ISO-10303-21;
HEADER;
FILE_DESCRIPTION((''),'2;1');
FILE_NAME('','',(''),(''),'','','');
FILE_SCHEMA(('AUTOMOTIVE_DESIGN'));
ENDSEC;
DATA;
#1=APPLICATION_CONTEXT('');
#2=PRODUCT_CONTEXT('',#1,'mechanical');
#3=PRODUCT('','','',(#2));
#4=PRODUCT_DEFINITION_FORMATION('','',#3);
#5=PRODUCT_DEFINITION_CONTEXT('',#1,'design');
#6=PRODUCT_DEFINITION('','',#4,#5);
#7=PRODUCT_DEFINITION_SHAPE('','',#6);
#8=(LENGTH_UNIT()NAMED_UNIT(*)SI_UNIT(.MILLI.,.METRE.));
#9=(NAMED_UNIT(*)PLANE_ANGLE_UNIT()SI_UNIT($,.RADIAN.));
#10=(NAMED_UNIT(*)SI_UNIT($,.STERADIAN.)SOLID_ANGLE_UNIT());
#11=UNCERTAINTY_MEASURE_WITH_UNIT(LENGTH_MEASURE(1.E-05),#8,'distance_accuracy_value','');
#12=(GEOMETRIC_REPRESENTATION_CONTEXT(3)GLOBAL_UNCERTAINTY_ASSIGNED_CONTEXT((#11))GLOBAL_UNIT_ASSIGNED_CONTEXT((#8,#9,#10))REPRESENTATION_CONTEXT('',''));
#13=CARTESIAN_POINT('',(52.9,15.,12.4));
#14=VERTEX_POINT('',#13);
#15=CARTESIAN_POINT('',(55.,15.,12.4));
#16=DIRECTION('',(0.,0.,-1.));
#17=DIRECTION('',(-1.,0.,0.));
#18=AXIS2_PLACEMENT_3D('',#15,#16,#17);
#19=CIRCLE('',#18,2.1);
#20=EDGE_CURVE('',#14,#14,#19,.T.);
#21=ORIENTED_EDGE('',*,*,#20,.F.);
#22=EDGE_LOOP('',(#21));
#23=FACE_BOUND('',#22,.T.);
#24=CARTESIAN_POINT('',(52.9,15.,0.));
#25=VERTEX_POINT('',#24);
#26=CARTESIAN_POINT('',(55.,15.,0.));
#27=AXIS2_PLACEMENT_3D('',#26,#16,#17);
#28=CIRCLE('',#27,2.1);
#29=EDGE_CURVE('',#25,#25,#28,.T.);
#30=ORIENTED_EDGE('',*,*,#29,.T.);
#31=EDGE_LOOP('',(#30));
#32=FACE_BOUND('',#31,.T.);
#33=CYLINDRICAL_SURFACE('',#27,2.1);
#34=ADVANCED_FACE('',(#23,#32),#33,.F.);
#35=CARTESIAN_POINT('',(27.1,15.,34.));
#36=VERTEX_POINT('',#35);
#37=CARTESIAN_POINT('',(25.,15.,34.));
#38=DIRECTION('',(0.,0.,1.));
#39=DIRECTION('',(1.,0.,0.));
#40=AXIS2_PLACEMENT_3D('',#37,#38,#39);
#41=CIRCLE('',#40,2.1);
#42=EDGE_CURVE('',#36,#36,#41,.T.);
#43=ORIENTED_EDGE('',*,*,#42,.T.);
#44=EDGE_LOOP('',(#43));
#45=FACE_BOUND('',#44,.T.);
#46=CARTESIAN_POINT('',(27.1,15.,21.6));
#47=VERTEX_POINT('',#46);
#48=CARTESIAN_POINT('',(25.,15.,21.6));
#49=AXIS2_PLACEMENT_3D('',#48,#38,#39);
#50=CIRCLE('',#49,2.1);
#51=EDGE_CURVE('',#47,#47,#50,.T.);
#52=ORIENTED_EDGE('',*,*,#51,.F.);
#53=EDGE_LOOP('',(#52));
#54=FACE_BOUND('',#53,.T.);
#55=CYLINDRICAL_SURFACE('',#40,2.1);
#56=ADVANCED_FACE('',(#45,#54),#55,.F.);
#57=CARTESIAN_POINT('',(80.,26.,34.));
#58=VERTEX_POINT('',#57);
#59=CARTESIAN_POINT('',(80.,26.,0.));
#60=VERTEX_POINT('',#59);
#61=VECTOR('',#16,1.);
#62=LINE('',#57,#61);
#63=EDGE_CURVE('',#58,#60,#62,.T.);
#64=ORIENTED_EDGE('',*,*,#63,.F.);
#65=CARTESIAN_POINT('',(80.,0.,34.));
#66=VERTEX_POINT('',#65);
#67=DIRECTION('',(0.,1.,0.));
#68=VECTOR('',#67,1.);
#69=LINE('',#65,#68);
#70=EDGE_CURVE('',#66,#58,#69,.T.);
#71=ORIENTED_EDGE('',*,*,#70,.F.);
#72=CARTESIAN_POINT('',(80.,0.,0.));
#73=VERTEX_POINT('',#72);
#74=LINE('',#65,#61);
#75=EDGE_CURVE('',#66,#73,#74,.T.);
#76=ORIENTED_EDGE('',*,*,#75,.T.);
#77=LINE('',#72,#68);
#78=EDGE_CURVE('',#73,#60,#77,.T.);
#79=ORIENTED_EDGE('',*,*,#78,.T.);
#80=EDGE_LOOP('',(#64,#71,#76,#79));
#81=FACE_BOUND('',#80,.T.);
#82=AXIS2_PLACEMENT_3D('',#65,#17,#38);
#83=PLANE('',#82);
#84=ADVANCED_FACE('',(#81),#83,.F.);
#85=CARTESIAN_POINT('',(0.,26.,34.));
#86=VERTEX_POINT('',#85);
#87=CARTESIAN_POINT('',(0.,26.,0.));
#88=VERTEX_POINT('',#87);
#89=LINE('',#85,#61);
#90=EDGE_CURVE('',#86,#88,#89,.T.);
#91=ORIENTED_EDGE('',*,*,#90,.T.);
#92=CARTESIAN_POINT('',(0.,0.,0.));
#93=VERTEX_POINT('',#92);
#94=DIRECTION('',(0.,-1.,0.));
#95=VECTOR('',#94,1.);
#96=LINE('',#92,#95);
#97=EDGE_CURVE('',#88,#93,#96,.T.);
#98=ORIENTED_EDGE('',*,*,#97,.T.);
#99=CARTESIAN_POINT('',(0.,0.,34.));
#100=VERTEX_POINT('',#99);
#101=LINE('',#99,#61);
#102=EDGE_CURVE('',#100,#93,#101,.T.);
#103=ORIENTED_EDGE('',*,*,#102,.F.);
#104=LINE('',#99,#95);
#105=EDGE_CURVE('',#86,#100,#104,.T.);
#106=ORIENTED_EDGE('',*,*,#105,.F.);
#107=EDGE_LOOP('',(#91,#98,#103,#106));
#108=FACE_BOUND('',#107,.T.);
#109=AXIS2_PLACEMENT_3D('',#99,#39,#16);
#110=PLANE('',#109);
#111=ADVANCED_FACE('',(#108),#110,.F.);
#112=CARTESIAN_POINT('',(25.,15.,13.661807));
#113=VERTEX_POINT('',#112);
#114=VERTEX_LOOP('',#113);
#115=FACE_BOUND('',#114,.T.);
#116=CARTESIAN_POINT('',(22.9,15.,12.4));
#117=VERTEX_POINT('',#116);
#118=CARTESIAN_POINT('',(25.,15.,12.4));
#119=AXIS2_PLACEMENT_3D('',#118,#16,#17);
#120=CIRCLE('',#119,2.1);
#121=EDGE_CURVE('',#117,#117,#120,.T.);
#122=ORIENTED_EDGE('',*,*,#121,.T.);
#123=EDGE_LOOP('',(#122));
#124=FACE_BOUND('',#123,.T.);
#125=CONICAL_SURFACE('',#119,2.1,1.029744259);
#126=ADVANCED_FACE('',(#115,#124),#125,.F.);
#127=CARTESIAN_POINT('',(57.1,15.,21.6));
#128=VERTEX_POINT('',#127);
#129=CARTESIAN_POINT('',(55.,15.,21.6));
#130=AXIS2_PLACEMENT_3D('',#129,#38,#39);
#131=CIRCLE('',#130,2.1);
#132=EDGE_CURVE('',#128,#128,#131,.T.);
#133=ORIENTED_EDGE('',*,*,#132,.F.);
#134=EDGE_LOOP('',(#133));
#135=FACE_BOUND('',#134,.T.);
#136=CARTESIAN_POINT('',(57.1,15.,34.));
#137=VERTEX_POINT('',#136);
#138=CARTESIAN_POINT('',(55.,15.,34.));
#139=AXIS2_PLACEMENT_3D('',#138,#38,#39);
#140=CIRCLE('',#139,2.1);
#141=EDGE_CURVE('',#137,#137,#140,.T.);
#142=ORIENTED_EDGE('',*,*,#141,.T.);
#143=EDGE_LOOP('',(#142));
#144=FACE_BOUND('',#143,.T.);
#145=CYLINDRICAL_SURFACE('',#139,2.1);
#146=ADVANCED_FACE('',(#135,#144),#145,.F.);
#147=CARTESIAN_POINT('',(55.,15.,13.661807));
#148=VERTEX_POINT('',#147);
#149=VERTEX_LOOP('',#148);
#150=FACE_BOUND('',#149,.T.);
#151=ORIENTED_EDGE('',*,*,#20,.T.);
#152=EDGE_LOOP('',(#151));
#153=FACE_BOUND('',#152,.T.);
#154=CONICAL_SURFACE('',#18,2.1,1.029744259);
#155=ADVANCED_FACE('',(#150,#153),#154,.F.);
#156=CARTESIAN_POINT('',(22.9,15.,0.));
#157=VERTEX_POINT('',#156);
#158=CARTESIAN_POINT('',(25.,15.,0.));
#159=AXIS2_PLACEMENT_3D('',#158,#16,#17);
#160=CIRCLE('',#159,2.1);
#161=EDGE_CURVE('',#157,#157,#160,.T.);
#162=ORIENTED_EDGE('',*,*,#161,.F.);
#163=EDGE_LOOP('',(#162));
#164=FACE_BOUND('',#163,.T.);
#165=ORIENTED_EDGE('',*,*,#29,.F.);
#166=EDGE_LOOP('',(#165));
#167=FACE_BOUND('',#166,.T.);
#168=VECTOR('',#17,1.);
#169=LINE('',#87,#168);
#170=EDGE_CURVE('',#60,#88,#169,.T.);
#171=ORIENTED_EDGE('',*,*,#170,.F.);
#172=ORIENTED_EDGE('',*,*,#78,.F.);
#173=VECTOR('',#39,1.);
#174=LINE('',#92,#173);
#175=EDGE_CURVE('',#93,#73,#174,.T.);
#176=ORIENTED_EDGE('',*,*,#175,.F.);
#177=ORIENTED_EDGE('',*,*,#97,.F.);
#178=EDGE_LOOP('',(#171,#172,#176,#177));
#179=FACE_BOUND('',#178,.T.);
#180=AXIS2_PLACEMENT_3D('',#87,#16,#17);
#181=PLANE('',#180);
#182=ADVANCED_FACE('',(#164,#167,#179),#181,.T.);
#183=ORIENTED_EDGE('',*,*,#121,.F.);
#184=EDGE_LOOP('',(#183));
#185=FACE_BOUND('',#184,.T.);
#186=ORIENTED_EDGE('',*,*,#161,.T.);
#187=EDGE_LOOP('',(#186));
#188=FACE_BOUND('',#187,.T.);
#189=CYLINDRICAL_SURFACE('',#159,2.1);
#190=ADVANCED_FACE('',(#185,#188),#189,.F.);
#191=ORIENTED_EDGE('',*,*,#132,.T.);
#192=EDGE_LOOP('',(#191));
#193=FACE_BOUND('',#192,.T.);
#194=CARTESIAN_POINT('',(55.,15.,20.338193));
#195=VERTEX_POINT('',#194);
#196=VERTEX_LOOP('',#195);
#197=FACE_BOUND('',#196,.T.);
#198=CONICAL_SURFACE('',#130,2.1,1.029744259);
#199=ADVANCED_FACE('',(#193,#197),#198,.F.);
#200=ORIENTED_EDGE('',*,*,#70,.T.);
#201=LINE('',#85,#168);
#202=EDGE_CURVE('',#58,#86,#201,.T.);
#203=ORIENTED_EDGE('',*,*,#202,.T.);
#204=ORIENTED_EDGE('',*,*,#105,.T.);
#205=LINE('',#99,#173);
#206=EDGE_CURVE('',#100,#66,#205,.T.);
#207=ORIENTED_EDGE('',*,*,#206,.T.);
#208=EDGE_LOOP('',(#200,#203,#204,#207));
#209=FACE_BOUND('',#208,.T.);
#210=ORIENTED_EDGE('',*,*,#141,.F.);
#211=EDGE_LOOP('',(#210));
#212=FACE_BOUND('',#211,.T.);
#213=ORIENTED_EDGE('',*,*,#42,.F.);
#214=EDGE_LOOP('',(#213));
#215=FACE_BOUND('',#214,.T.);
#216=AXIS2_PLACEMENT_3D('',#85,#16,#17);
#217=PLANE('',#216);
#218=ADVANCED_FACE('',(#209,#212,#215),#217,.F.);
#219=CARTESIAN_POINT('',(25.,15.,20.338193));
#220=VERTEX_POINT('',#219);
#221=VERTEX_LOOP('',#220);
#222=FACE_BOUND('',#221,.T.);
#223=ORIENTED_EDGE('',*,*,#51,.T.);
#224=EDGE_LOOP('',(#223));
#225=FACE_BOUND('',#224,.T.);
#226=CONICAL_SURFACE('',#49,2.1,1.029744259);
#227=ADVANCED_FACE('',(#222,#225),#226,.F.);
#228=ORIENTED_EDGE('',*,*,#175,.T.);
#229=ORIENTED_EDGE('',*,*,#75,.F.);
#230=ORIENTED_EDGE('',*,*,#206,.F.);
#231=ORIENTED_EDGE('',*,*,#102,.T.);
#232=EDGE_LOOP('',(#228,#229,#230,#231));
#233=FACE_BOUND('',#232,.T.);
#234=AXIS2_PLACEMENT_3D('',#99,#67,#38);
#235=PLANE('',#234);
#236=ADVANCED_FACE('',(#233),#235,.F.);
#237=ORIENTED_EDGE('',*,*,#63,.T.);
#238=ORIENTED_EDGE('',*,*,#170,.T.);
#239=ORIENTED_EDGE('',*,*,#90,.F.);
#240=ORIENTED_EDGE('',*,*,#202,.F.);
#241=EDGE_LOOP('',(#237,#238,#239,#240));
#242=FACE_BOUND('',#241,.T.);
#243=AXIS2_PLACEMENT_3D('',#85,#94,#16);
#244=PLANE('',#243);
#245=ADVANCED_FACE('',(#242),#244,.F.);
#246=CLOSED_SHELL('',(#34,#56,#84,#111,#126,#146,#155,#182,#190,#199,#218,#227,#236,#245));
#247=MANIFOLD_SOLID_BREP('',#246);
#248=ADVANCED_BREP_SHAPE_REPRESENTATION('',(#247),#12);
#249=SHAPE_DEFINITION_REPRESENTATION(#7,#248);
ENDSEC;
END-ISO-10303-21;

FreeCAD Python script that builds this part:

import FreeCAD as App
import Part
import Sketcher

V = App.Vector


def add_polygon(sketch, points):
    """Adds a closed chain of lines whose ends are joined by coincident constraints."""
    first, n = sketch.GeometryCount, len(points)
    for a, b in zip(points, points[1:] + points[:1]):
        sketch.addGeometry(Part.LineSegment(App.Vector(*a, 0), App.Vector(*b, 0)), False)
    for i in range(n):
        sketch.addConstraint(Sketcher.Constraint("Coincident", first + i, 2, first + (i + 1) % n, 1))

doc = App.newDocument("Part")
body = doc.addObject("PartDesign::Body", "Body")

# Sketch on XY plane
sketch1 = doc.addObject("Sketcher::SketchObject", "Sketch")
body.addObject(sketch1)
sketch1.AttachmentSupport = (doc.XY_Plane, [""])
sketch1.MapMode = "FlatFace"
add_polygon(sketch1, [(0, 26), (0, 0), (80, 0), (80, 26)])  # lines 0-3
sketch1.addConstraint(Sketcher.Constraint("Vertical", 0))
sketch1.addConstraint(Sketcher.Constraint("Horizontal", 1))
sketch1.addConstraint(Sketcher.Constraint("Vertical", 2))
sketch1.addConstraint(Sketcher.Constraint("Horizontal", 3))
sketch1.addConstraint(Sketcher.Constraint("Coincident", 0, 2, -1, 1))
sketch1.addConstraint(Sketcher.Constraint("DistanceX", 1, 1, 1, 2, 80.0))
sketch1.addConstraint(Sketcher.Constraint("DistanceY", 0, 2, 0, 1, 26.0))
pad1 = doc.addObject("PartDesign::Pad", "Pad")
body.addObject(pad1)
pad1.Profile = sketch1
pad1.Length = 34

# Sketch on XY plane
sketch2 = doc.addObject("Sketcher::SketchObject", "Sketch001")
body.addObject(sketch2)
sketch2.AttachmentSupport = (doc.XY_Plane, [""])
sketch2.MapMode = "FlatFace"
sketch2.addGeometry(Part.Circle(V(55, 15, 0), V(0, 0, 1), 2.1), False)
sketch2.addGeometry(Part.Circle(V(25, 15, 0), V(0, 0, 1), 2.1), False)
sketch2.addConstraint(Sketcher.Constraint("Equal", 0, 1))
sketch2.addConstraint(Sketcher.Constraint("Horizontal", 0, 3, 1, 3))
sketch2.addConstraint(Sketcher.Constraint("Diameter", 0, 4.2))
sketch2.addConstraint(Sketcher.Constraint("DistanceX", -1, 1, 0, 3, 55.0))
sketch2.addConstraint(Sketcher.Constraint("DistanceY", -1, 1, 0, 3, 15.0))
sketch2.addConstraint(Sketcher.Constraint("DistanceX", -1, 1, 1, 3, 25.0))
doc.recompute()
hole = doc.addObject("PartDesign::Hole", "Hole")
body.addObject(hole)
hole.Profile = sketch2
hole.ThreadType = "None"
hole.Diameter = 4.2
hole.DepthType = "Dimension"
hole.Depth = 12.4
hole.DrillPoint = "Angled"
hole.DrillPointAngle = 118
hole.Reversed = True

# Sketch on XY plane
sketch3 = doc.addObject("Sketcher::SketchObject", "Sketch002")
body.addObject(sketch3)
sketch3.AttachmentSupport = (doc.XY_Plane, [""])
sketch3.MapMode = "FlatFace"
sketch3.AttachmentOffset = App.Placement(V(0, 0, 34), App.Rotation())
sketch3.addGeometry(Part.Circle(V(25, 15, 0), V(0, 0, 1), 2.1), False)
sketch3.addGeometry(Part.Circle(V(55, 15, 0), V(0, 0, 1), 2.1), False)
sketch3.addConstraint(Sketcher.Constraint("Equal", 0, 1))
sketch3.addConstraint(Sketcher.Constraint("Horizontal", 0, 3, 1, 3))
sketch3.addConstraint(Sketcher.Constraint("Diameter", 0, 4.2))
sketch3.addConstraint(Sketcher.Constraint("DistanceX", -1, 1, 0, 3, 25.0))
sketch3.addConstraint(Sketcher.Constraint("DistanceY", -1, 1, 0, 3, 15.0))
sketch3.addConstraint(Sketcher.Constraint("DistanceX", -1, 1, 1, 3, 55.0))
doc.recompute()
hole2 = doc.addObject("PartDesign::Hole", "Hole001")
body.addObject(hole2)
hole2.Profile = sketch3
hole2.ThreadType = "None"
hole2.Diameter = 4.2
hole2.DepthType = "Dimension"
hole2.Depth = 12.4
hole2.DrillPoint = "Angled"
hole2.DrillPointAngle = 118

doc.recompute()
